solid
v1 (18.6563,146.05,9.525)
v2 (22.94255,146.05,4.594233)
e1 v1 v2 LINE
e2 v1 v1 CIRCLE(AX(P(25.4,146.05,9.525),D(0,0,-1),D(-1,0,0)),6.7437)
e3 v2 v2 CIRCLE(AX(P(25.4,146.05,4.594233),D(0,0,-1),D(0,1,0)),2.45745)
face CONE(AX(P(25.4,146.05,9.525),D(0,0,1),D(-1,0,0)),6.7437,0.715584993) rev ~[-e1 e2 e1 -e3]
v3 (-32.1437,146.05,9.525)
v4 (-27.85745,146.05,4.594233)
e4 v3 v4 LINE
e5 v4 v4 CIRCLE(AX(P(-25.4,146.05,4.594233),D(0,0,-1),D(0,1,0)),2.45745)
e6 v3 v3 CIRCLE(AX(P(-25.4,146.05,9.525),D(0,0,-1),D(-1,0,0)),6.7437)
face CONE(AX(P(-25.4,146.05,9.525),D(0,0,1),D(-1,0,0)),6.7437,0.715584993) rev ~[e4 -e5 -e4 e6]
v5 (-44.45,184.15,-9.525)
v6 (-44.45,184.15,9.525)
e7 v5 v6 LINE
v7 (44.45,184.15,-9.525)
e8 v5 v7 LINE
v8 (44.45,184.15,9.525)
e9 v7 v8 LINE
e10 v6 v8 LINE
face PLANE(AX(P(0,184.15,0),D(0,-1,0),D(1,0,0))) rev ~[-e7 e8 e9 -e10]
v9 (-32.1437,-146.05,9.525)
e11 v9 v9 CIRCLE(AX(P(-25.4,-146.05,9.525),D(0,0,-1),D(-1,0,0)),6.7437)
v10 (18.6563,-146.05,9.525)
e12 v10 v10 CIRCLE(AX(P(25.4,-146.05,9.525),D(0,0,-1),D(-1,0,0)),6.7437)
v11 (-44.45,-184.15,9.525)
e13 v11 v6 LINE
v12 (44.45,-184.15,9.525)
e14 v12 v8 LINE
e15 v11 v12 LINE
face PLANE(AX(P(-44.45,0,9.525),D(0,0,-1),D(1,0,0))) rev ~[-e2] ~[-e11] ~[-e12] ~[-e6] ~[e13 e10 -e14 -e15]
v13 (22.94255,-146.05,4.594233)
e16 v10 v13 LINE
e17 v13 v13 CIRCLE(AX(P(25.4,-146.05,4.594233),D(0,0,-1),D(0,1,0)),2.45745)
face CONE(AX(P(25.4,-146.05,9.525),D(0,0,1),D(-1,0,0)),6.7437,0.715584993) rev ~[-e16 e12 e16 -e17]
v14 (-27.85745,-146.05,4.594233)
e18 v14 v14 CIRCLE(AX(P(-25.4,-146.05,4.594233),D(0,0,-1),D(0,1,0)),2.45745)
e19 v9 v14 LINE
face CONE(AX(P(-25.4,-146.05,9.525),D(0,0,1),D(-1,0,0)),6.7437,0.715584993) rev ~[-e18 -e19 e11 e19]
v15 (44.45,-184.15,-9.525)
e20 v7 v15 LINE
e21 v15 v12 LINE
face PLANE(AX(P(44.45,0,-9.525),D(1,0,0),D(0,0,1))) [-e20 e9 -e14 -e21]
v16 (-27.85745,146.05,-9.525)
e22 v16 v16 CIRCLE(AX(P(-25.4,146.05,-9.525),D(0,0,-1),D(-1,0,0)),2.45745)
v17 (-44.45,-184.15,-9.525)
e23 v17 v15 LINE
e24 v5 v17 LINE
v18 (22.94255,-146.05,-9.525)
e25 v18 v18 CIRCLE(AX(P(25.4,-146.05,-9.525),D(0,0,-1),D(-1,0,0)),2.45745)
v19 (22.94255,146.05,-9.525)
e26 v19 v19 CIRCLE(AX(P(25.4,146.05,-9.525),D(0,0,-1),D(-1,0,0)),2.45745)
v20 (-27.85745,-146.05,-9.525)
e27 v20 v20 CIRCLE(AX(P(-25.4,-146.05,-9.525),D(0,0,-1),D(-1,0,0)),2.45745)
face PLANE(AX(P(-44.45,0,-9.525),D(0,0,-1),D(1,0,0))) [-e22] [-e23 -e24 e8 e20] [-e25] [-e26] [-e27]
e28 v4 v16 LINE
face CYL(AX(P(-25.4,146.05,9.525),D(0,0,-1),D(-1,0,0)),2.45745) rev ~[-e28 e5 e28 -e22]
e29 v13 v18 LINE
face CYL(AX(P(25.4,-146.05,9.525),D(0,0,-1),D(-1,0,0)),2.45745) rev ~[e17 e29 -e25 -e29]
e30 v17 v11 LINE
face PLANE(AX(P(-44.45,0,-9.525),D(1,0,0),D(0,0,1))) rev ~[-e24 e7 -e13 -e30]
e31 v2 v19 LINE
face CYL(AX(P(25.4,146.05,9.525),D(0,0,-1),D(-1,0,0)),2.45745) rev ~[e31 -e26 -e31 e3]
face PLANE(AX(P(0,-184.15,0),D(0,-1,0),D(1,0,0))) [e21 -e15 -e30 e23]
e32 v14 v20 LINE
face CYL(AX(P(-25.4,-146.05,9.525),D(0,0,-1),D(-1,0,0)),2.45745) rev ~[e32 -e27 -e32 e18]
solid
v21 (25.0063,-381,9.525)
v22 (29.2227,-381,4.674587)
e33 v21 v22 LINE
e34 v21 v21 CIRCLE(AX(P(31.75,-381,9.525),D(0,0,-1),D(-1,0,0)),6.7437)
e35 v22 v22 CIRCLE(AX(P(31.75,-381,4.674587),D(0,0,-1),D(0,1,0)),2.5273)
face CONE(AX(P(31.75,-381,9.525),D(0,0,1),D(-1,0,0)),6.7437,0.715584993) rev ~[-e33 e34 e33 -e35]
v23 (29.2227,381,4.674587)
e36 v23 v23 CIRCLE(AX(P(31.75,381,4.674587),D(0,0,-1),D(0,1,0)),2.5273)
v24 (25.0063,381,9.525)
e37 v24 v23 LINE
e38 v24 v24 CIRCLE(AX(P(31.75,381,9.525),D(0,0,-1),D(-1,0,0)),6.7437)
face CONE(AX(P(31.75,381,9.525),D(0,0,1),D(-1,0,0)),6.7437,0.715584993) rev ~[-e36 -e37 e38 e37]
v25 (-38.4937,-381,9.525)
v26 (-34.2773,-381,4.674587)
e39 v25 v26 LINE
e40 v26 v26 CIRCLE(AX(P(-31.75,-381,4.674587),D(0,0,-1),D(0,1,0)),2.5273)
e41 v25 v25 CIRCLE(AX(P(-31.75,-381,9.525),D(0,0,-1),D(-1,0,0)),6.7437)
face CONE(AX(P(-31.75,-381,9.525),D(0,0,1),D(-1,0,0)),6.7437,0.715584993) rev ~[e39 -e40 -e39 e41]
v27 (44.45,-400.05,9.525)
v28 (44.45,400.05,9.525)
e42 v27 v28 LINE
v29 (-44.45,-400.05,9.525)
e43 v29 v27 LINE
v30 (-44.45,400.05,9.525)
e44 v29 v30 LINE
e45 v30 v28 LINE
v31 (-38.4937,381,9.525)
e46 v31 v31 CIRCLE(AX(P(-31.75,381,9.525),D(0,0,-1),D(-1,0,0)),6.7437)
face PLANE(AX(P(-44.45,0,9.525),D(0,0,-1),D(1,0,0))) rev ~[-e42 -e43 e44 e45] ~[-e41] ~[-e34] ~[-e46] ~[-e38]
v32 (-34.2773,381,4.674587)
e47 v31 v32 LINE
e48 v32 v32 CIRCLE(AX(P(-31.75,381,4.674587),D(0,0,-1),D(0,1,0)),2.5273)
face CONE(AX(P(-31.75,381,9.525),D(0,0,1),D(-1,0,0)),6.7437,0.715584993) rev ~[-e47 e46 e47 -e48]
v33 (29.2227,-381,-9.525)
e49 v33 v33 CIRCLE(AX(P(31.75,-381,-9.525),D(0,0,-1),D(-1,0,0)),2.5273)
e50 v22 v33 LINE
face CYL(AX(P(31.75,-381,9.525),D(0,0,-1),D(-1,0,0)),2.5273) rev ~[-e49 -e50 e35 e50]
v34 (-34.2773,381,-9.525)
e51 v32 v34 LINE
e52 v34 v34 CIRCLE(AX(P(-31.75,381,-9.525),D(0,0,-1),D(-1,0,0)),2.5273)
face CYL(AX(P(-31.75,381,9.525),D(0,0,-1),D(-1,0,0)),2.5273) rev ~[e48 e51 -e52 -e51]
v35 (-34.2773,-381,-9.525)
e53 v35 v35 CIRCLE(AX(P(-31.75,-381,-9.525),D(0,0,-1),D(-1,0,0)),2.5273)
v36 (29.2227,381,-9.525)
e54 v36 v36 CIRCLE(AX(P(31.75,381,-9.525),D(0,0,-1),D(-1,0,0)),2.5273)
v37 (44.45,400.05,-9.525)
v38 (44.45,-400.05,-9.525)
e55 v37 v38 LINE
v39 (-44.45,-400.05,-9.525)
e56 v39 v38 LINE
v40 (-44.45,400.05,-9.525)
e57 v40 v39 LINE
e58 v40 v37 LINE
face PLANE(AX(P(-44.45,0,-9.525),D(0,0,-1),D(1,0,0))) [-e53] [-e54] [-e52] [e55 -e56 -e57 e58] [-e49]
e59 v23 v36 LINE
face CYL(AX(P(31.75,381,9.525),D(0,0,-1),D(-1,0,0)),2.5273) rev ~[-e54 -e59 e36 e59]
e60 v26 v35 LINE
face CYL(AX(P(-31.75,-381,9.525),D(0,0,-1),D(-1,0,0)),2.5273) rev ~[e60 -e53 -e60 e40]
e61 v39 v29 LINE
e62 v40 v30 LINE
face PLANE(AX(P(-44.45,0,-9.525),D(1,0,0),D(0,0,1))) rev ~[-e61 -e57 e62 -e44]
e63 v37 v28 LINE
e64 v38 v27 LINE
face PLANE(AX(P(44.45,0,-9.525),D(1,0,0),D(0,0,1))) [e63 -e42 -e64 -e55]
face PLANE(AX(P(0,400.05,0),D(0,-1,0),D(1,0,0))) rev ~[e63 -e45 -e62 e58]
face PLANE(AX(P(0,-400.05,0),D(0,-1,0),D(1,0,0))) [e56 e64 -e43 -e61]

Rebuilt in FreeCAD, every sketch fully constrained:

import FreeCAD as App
import Part
import Sketcher

V = App.Vector
Q = App.Units.Quantity

doc = App.newDocument("Part")
body = doc.addObject("PartDesign::Body", "Body")

# Sketch on XZ plane
sketch1 = doc.addObject("Sketcher::SketchObject", "Sketch")
body.addObject(sketch1)
sketch1.AttachmentSupport = (doc.XZ_Plane, [""])
sketch1.MapMode = "FlatFace"
sketch1.addGeometry(Part.LineSegment(V(-44.45, 9.525, 0), V(-44.45, -9.525, 0)), False)
sketch1.addGeometry(Part.LineSegment(V(-44.45, -9.525, 0), V(44.45, -9.525, 0)), False)
sketch1.addGeometry(Part.LineSegment(V(44.45, -9.525, 0), V(44.45, 9.525, 0)), False)
sketch1.addGeometry(Part.LineSegment(V(44.45, 9.525, 0), V(-44.45, 9.525, 0)), False)
sketch1.addConstraint(Sketcher.Constraint("Coincident", 0, 2, 1, 1))
sketch1.addConstraint(Sketcher.Constraint("Coincident", 1, 2, 2, 1))
sketch1.addConstraint(Sketcher.Constraint("Coincident", 2, 2, 3, 1))
sketch1.addConstraint(Sketcher.Constraint("Coincident", 3, 2, 0, 1))
sketch1.addConstraint(Sketcher.Constraint("Vertical", 0))
sketch1.addConstraint(Sketcher.Constraint("Horizontal", 1))
sketch1.addConstraint(Sketcher.Constraint("Vertical", 2))
sketch1.addConstraint(Sketcher.Constraint("Horizontal", 3))
sketch1.addConstraint(Sketcher.Constraint("Symmetric", 0, 2, 2, 2, -1, 1))
sketch1.addConstraint(Sketcher.Constraint("DistanceX", 1, 1, 1, 2, Q("3.5 in")))
sketch1.addConstraint(Sketcher.Constraint("DistanceY", 0, 2, 0, 1, Q("0.75 in")))
pad1 = doc.addObject("PartDesign::Pad", "Pad")
body.addObject(pad1)
pad1.Profile = sketch1
pad1.Length = Q("14.5 in")
pad1.Midplane = True

# Sketch on XY plane
sketch2 = doc.addObject("Sketcher::SketchObject", "Sketch001")
body.addObject(sketch2)
sketch2.AttachmentSupport = (doc.XY_Plane, [""])
sketch2.MapMode = "FlatFace"
sketch2.AttachmentOffset = App.Placement(V(0, 0, 0.375 * 25.4), App.Rotation())
sketch2.addGeometry(Part.Circle(V(-25.4, -146.05, 0), V(0, 0, 1), 2.45745), False)
sketch2.addGeometry(Part.Circle(V(25.4, -146.05, 0), V(0, 0, 1), 2.45745), False)
sketch2.addGeometry(Part.Circle(V(-25.4, 146.05, 0), V(0, 0, 1), 2.45745), False)
sketch2.addGeometry(Part.Circle(V(25.4, 146.05, 0), V(0, 0, 1), 2.45745), False)
sketch2.addConstraint(Sketcher.Constraint("Equal", 0, 1))
sketch2.addConstraint(Sketcher.Constraint("Equal", 1, 2))
sketch2.addConstraint(Sketcher.Constraint("Equal", 2, 3))
sketch2.addConstraint(Sketcher.Constraint("Symmetric", 1, 3, 2, 3, -1, 1))
sketch2.addConstraint(Sketcher.Constraint("Symmetric", 0, 3, 3, 3, -1, 1))
sketch2.addConstraint(Sketcher.Constraint("Symmetric", 0, 3, 1, 3, -2))
sketch2.addConstraint(Sketcher.Constraint("DistanceX", 0, 3, -1, 1, Q("1 in")))
sketch2.addConstraint(Sketcher.Constraint("Diameter", 0, Q("0.1935 in")))
sketch2.addConstraint(Sketcher.Constraint("DistanceY", 0, 3, 2, 3, Q("11.5 in")))
doc.recompute()
hole = doc.addObject("PartDesign::Hole", "Hole")
body.addObject(hole)
hole.Profile = sketch2
hole.ThreadType = "None"
hole.Diameter = Q("0.1935 in")
hole.DepthType = "ThroughAll"
hole.HoleCutType = "Countersink"
hole.HoleCutDiameter = Q("0.531 in")
hole.HoleCutCountersinkAngle = 82
body2 = doc.addObject("PartDesign::Body", "Body001")

# Sketch on XZ plane
sketch3 = doc.addObject("Sketcher::SketchObject", "Sketch002")
body2.addObject(sketch3)
sketch3.AttachmentSupport = (doc.getObject("XZ_Plane001"), [""])
sketch3.MapMode = "FlatFace"
sketch3.addGeometry(Part.LineSegment(V(-44.45, 9.525, 0), V(-44.45, -9.525, 0)), False)
sketch3.addGeometry(Part.LineSegment(V(-44.45, -9.525, 0), V(44.45, -9.525, 0)), False)
sketch3.addGeometry(Part.LineSegment(V(44.45, -9.525, 0), V(44.45, 9.525, 0)), False)
sketch3.addGeometry(Part.LineSegment(V(44.45, 9.525, 0), V(-44.45, 9.525, 0)), False)
sketch3.addConstraint(Sketcher.Constraint("Coincident", 0, 2, 1, 1))
sketch3.addConstraint(Sketcher.Constraint("Coincident", 1, 2, 2, 1))
sketch3.addConstraint(Sketcher.Constraint("Coincident", 2, 2, 3, 1))
sketch3.addConstraint(Sketcher.Constraint("Coincident", 3, 2, 0, 1))
sketch3.addConstraint(Sketcher.Constraint("Vertical", 0))
sketch3.addConstraint(Sketcher.Constraint("Horizontal", 1))
sketch3.addConstraint(Sketcher.Constraint("Vertical", 2))
sketch3.addConstraint(Sketcher.Constraint("Horizontal", 3))
sketch3.addConstraint(Sketcher.Constraint("Symmetric", 0, 2, 2, 2, -1, 1))
sketch3.addConstraint(Sketcher.Constraint("DistanceX", 1, 1, 1, 2, Q("3.5 in")))
sketch3.addConstraint(Sketcher.Constraint("DistanceY", 0, 2, 0, 1, Q("0.75 in")))
pad2 = doc.addObject("PartDesign::Pad", "Pad001")
body2.addObject(pad2)
pad2.Profile = sketch3
pad2.Length = Q("31.5 in")
pad2.Midplane = True

# Sketch on XY plane
sketch4 = doc.addObject("Sketcher::SketchObject", "Sketch003")
body2.addObject(sketch4)
sketch4.AttachmentSupport = (doc.getObject("XY_Plane001"), [""])
sketch4.MapMode = "FlatFace"
sketch4.AttachmentOffset = App.Placement(V(0, 0, 0.375 * 25.4), App.Rotation())
sketch4.addGeometry(Part.Circle(V(-31.75, -381, 0), V(0, 0, 1), 2.5273), False)
sketch4.addGeometry(Part.Circle(V(31.75, -381, 0), V(0, 0, 1), 2.5273), False)
sketch4.addGeometry(Part.Circle(V(-31.75, 381, 0), V(0, 0, 1), 2.5273), False)
sketch4.addGeometry(Part.Circle(V(31.75, 381, 0), V(0, 0, 1), 2.5273), False)
sketch4.addConstraint(Sketcher.Constraint("Equal", 0, 1))
sketch4.addConstraint(Sketcher.Constraint("Equal", 1, 2))
sketch4.addConstraint(Sketcher.Constraint("Equal", 2, 3))
sketch4.addConstraint(Sketcher.Constraint("Symmetric", 1, 3, 2, 3, -1, 1))
sketch4.addConstraint(Sketcher.Constraint("Symmetric", 0, 3, 3, 3, -1, 1))
sketch4.addConstraint(Sketcher.Constraint("Symmetric", 0, 3, 1, 3, -2))
sketch4.addConstraint(Sketcher.Constraint("Diameter", 0, Q("0.199 in")))
sketch4.addConstraint(Sketcher.Constraint("DistanceY", 0, 3, -1, 1, Q("15 in")))
sketch4.addConstraint(Sketcher.Constraint("DistanceX", 0, 3, 1, 3, Q("2.5 in")))
doc.recompute()
hole2 = doc.addObject("PartDesign::Hole", "Hole001")
body2.addObject(hole2)
hole2.Profile = sketch4
hole2.ThreadType = "None"
hole2.Diameter = Q("0.199 in")
hole2.DepthType = "ThroughAll"
hole2.HoleCutType = "Countersink"
hole2.HoleCutDiameter = Q("0.531 in")
hole2.HoleCutCountersinkAngle = 82

doc.recompute()
